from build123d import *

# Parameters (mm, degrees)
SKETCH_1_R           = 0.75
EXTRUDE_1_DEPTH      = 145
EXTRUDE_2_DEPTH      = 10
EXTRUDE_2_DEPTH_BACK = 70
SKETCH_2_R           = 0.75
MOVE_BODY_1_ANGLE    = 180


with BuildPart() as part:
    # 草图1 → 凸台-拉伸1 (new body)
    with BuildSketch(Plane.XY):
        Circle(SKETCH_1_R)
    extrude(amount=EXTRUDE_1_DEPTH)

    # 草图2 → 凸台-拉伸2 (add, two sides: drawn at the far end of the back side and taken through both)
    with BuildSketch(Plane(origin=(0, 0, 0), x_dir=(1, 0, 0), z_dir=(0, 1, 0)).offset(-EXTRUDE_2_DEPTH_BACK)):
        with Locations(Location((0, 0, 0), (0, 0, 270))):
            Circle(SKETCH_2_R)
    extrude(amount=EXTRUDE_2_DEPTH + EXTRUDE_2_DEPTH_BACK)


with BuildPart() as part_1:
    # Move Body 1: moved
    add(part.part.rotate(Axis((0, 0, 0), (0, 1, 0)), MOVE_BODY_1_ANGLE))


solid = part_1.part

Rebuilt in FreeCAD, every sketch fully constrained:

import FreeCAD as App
import Part
import Sketcher
Q = App.Units.Quantity

doc = App.newDocument("Part")
params = doc.addObject("Spreadsheet::Sheet", "Params")
for row, (alias, value) in enumerate([
    ("sketch1_diameter", "1.5 mm"),
    ("pad1_length", "145 mm"),
    ("sketch2_diameter", "1.5 mm"),
    ("pad2_length", "10 mm"),
    ("pad2_length2", "70 mm"),
], start=1):
    params.set(f"A{row}", alias)
    params.set(f"B{row}", "=" + value)
    params.setAlias(f"B{row}", alias)

body = doc.addObject("PartDesign::Body", "Body")

# Sketch on XY plane
sketch1 = body.newObject("Sketcher::SketchObject", "Sketch")
sketch1.AttachmentSupport = (doc.getObject("XY_Plane"), [""])
sketch1.MapMode = "FlatFace"
sketch1.addGeometry(Part.Circle(App.Vector(0, 0, 0), App.Vector(0, 0, 1), 0.75), False)
sketch1.addConstraint([
    Sketcher.Constraint("Coincident", 0, 3, -1, 1),
    Sketcher.Constraint("Diameter", 0, Q("1.5 mm")),
])
sketch1.setExpression("Constraints[1]", "Params.sketch1_diameter")
pad1 = body.newObject("PartDesign::Pad", "Pad")
pad1.Profile = sketch1
pad1.setExpression("Length", "Params.pad1_length")

# Sketch on XZ plane
sketch2 = body.newObject("Sketcher::SketchObject", "Sketch001")
sketch2.AttachmentSupport = (doc.getObject("XZ_Plane"), [""])
sketch2.MapMode = "FlatFace"
sketch2.addGeometry(Part.Circle(App.Vector(0, 0, 0), App.Vector(0, 0, 1), 0.75), False)
sketch2.addConstraint([
    Sketcher.Constraint("Coincident", 0, 3, -1, 1),
    Sketcher.Constraint("Diameter", 0, Q("1.5 mm")),
])
sketch2.setExpression("Constraints[1]", "Params.sketch2_diameter")
pad2 = body.newObject("PartDesign::Pad", "Pad001")
pad2.Profile = sketch2
pad2.Type = "TwoLengths"
pad2.setExpression("Length", "Params.pad2_length")
pad2.setExpression("Length2", "Params.pad2_length2")
pad2.Reversed = True
body2 = doc.addObject("PartDesign::Body", "Body001")
doc.recompute()

body.Placement = App.Placement(App.Vector(0, 0, 0), App.Rotation(App.Vector(0, 1, 0), 180))
boolean = body2.newObject("PartDesign::Boolean", "Boolean")
boolean.Type = "Fuse"
boolean.addObjects([body])

doc.recompute()
